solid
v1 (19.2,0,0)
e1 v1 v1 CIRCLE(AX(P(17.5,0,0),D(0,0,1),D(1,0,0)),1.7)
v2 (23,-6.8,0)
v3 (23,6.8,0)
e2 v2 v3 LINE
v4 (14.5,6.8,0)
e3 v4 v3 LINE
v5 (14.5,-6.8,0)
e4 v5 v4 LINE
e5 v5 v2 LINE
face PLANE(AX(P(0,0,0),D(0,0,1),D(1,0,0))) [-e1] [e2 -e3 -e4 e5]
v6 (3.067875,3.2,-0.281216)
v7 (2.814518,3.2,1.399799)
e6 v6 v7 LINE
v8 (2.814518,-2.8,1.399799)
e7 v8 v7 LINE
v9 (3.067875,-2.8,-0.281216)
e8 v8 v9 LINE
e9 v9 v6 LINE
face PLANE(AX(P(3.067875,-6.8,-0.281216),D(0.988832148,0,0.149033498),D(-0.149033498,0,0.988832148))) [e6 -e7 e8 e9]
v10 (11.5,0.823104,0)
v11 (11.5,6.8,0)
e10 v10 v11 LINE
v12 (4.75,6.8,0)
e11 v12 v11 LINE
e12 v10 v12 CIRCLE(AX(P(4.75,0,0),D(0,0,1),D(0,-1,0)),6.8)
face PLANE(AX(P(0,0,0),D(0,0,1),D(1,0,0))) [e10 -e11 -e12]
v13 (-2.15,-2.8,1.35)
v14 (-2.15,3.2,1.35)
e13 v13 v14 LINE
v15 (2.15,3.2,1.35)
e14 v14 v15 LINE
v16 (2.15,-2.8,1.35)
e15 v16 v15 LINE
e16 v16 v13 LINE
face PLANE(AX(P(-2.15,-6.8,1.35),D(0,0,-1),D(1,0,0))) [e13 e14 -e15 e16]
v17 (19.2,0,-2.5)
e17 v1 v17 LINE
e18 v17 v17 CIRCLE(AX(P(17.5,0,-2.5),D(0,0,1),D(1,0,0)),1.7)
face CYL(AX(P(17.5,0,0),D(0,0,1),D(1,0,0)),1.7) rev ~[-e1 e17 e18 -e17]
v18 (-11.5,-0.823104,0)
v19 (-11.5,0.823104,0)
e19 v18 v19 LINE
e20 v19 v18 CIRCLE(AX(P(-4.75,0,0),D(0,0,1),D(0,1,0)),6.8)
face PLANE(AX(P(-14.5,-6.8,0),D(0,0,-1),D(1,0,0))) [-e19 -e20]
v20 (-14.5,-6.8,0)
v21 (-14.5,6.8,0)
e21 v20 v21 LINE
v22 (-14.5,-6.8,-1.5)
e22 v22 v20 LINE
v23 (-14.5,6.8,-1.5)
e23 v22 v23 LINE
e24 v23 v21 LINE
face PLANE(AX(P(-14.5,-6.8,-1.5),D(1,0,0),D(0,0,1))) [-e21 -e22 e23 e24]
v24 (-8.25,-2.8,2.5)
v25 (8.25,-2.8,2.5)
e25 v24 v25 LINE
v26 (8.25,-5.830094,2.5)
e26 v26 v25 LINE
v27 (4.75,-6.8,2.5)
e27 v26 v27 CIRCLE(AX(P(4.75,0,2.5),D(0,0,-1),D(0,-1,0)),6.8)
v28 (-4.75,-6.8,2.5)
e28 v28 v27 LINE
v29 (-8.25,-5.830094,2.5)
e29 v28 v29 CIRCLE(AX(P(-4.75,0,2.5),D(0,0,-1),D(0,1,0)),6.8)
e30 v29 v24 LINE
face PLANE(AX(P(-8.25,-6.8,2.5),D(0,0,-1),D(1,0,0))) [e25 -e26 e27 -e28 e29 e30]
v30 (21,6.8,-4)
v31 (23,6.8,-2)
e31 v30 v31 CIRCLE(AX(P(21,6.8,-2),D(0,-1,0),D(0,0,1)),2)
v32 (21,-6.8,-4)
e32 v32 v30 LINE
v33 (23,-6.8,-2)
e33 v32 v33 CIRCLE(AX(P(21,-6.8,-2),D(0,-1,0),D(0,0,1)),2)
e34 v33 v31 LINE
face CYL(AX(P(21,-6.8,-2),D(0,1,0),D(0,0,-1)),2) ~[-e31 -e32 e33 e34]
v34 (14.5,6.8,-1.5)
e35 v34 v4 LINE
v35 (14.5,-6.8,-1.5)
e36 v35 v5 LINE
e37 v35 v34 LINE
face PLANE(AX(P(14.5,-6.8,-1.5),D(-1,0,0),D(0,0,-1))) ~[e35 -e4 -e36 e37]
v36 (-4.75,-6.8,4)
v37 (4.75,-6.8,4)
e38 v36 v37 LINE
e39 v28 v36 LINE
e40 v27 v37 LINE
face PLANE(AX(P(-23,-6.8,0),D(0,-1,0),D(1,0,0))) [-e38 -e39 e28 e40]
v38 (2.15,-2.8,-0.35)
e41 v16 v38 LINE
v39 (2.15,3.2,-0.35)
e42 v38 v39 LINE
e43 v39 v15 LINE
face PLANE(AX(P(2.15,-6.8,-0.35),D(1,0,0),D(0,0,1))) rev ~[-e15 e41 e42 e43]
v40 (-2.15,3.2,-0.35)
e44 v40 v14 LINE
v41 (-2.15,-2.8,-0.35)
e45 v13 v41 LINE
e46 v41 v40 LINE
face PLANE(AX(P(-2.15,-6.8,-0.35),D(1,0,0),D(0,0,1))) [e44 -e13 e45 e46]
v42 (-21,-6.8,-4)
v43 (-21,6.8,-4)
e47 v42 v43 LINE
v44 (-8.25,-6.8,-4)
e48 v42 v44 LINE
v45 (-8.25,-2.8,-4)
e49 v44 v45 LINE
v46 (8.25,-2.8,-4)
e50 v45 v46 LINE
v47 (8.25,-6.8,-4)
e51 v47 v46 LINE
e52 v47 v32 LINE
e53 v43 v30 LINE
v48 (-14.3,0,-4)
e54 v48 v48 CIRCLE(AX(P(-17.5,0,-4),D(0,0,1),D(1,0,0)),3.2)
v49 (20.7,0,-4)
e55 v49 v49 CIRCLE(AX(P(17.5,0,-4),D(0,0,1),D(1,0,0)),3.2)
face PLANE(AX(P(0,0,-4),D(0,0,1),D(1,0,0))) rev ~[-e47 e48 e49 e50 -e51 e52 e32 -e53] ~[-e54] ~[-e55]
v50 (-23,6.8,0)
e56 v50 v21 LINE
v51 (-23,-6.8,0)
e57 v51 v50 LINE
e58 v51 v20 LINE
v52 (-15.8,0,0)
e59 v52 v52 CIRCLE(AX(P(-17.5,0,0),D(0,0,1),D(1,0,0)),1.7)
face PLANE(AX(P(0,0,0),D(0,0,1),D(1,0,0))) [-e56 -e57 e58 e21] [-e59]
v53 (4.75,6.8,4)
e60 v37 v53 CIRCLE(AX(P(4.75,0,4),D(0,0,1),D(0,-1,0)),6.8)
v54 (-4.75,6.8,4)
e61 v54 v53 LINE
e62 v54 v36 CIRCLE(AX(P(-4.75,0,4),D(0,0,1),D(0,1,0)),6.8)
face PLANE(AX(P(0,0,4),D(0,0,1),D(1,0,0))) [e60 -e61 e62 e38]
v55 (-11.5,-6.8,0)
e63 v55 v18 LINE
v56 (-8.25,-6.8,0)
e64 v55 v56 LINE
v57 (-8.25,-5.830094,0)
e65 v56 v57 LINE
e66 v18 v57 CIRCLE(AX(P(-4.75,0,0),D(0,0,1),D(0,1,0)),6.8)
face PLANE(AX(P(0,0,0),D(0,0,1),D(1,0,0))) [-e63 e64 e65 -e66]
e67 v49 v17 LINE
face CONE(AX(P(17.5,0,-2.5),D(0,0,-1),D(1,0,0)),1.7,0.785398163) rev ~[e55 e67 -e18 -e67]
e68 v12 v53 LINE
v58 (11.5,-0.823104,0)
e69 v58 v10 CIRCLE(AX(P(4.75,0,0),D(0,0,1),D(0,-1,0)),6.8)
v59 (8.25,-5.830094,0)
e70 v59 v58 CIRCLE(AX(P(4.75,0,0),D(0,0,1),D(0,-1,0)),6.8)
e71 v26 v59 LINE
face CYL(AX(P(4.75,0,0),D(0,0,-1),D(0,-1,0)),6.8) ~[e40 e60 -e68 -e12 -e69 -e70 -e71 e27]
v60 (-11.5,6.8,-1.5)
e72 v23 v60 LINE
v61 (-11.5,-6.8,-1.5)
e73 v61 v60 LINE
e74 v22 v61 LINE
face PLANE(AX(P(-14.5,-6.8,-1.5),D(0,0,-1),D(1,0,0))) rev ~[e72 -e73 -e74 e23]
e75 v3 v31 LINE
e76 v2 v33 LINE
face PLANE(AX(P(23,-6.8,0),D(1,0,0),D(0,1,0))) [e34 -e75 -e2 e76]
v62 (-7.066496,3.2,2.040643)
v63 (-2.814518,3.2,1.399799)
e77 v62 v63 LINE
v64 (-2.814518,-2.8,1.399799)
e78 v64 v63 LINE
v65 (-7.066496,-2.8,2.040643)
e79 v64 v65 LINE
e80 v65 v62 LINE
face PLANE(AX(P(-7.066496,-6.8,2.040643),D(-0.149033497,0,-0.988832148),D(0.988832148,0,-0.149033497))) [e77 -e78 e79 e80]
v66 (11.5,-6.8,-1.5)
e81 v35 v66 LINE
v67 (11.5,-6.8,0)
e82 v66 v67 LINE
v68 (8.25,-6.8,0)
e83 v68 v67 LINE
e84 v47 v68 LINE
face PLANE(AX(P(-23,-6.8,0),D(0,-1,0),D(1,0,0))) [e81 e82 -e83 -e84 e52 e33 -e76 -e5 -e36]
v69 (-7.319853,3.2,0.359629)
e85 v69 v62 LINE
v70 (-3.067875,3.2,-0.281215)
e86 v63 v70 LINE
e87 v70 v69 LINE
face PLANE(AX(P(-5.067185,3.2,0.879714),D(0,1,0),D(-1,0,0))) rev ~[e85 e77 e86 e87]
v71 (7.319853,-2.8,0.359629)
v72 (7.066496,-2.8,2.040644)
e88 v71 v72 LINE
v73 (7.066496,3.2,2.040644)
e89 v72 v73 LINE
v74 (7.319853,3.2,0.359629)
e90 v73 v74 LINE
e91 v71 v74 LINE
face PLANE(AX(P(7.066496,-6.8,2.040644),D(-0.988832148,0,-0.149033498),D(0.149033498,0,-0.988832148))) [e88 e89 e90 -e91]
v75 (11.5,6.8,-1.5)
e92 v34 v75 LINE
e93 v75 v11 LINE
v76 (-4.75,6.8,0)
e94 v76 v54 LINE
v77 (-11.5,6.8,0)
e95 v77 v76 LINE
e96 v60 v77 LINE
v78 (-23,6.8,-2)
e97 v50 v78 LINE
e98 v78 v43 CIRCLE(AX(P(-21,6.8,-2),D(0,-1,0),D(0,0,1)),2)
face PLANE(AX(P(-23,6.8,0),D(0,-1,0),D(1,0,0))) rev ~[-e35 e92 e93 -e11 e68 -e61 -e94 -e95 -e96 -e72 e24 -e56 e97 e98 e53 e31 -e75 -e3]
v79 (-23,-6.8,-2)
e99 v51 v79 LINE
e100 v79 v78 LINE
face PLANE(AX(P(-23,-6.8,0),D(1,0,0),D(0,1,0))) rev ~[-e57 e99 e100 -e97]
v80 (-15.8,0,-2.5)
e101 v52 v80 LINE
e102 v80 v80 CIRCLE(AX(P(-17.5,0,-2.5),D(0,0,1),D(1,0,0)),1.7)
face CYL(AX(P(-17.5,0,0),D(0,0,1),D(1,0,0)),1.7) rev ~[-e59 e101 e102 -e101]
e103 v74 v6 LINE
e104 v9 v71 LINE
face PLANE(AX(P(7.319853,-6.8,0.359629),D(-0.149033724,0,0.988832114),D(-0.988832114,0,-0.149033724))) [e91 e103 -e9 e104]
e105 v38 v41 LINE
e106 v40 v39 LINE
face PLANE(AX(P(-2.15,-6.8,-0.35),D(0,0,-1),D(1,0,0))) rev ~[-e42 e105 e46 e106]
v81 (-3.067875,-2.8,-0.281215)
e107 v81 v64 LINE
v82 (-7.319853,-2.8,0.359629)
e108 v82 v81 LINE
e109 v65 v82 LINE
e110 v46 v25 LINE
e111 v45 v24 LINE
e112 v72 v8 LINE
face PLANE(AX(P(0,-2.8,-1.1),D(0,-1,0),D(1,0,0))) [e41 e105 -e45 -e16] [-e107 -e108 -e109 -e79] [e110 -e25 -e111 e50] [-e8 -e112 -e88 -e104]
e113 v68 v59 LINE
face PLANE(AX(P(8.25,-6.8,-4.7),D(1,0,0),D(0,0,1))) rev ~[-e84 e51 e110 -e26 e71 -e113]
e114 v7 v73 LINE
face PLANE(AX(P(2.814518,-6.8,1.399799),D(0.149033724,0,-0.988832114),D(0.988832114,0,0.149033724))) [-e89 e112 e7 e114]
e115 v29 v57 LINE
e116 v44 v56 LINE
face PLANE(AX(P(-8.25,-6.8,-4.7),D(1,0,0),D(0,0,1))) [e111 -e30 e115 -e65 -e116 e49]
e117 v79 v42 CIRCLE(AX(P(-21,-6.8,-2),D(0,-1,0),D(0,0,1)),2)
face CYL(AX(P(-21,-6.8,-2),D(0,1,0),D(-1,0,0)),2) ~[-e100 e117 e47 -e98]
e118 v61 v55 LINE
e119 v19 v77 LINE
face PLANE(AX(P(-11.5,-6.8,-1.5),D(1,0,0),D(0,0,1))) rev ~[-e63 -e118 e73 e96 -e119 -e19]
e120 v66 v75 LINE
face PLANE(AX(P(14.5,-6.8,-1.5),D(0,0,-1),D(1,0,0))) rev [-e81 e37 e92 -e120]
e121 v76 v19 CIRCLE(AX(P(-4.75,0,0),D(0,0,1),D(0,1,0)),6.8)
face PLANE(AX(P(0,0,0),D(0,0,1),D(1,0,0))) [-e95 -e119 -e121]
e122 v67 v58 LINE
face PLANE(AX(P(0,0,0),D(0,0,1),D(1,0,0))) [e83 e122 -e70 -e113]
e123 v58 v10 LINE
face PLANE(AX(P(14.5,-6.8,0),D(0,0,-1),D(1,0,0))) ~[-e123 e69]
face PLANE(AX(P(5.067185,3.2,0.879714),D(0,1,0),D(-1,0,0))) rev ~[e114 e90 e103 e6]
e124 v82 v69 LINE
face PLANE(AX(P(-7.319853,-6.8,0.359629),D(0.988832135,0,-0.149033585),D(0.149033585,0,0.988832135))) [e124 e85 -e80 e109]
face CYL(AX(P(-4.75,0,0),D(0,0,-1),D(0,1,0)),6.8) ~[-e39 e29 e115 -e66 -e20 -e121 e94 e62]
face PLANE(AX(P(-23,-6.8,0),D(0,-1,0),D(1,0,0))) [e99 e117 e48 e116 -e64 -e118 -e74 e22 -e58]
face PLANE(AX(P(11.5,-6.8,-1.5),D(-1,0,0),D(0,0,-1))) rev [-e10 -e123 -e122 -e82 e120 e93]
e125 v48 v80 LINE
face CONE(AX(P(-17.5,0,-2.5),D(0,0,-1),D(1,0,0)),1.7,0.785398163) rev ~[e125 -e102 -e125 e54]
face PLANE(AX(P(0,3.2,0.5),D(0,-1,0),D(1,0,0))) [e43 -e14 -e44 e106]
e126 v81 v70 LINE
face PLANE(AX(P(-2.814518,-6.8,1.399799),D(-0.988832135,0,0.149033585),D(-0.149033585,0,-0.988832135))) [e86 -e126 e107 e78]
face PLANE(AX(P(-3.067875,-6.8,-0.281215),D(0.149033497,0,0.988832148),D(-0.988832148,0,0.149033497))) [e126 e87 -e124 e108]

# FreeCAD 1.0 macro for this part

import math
import FreeCAD as App
import Part
import Sketcher

V = App.Vector
Q = App.Units.Quantity


def edges_at(feature, points):
    """Names of the edges that pass closest to the given points."""
    edges = feature.Shape.Edges
    near = lambda p: min(range(len(edges)), key=lambda i: edges[i].distToShape(Part.Vertex(*p))[0])
    return sorted({f"Edge{near(p) + 1}" for p in points})


def add_polygon(sketch, points):
    """Adds a closed chain of lines whose ends are joined by coincident constraints."""
    first, n = sketch.GeometryCount, len(points)
    for a, b in zip(points, points[1:] + points[:1]):
        sketch.addGeometry(Part.LineSegment(App.Vector(*a, 0), App.Vector(*b, 0)), False)
    for i in range(n):
        sketch.addConstraint(Sketcher.Constraint("Coincident", first + i, 2, first + (i + 1) % n, 1))

doc = App.newDocument("Part")
params = doc.addObject("Spreadsheet::Sheet", "Params")
for row, (alias, value) in enumerate([
    ("sketch1_diameter", "3.4 mm"),
    ("sketch1_width", "46 mm"),
    ("sketch1_height", "13.6 mm"),
    ("pad1_length", "4 mm"),
    ("sketch2_radius", "6.8 mm"),
    ("sketch2_width", "9.5 mm"),
    ("pad2_length", "4 mm"),
    ("sketch3_width", "4.3 mm"),
    ("sketch3_height", "1.7 mm"),
    ("sketch3_length", "4.3 mm"),
    ("sketch3_length2", "1.699999 mm"),
    ("pocket1_length", "10 mm"),
    ("sketch4_width", "16.5 mm"),
    ("sketch4_height", "7.2 mm"),
    ("pocket2_length", "4 mm"),
    ("sketch5_width", "3 mm"),
    ("sketch5_height", "1.5 mm"),
    ("fillet_radius", "2 mm"),
    ("fillet2_radius", "2 mm"),
    ("chamfer_size", "1.5 mm"),
    ("chamfer2_size", "1.5 mm"),
], start=1):
    params.set(f"A{row}", alias)
    params.set(f"B{row}", "=" + value)
    params.setAlias(f"B{row}", alias)

body = doc.addObject("PartDesign::Body", "Body")

sketch1 = body.newObject("Sketcher::SketchObject", "Sketch")
sketch1.AttachmentSupport = (doc.getObject("XY_Plane"), [""])
sketch1.MapMode = "FlatFace"
add_polygon(sketch1, [(-23, 6.8), (-23, -6.8), (23, -6.8), (23, 6.8)])
sketch1.addGeometry(Part.Circle(V(-17.5, 0, 0), V(0, 0, 1), 1.7), False)
sketch1.addGeometry(Part.Circle(V(17.5, 0, 0), V(0, 0, 1), 1.7), False)
sketch1.addConstraint([
    Sketcher.Constraint("Vertical", 0),
    Sketcher.Constraint("Horizontal", 1),
    Sketcher.Constraint("Vertical", 2),
    Sketcher.Constraint("Horizontal", 3),
    Sketcher.Constraint("Equal", 4, 5),
    Sketcher.Constraint("Symmetric", 4, 3, 5, 3, -1, 1),
    Sketcher.Constraint("Symmetric", 0, 2, 2, 2, -1, 1),
    Sketcher.Constraint("PointOnObject", 4, 3, -1),
    Sketcher.Constraint("Diameter", 4, Q("3.4 mm")),
    Sketcher.Constraint("DistanceX", 1, 1, 1, 2, Q("46 mm")),
    Sketcher.Constraint("DistanceY", 0, 2, 0, 1, Q("13.6 mm")),
    Sketcher.Constraint("DistanceX", 4, 3, 5, 3, Q("35 mm")),
])
sketch1.setExpression("Constraints[12]", "Params.sketch1_diameter")
sketch1.setExpression("Constraints[13]", "Params.sketch1_width")
sketch1.setExpression("Constraints[14]", "Params.sketch1_height")
pad1 = body.newObject("PartDesign::Pad", "Pad")
pad1.Profile = sketch1
pad1.setExpression("Length", "Params.pad1_length")
pad1.Reversed = True

sketch2 = body.newObject("Sketcher::SketchObject", "Sketch001")
sketch2.AttachmentSupport = (doc.getObject("XY_Plane"), [""])
sketch2.MapMode = "FlatFace"
sketch2.addGeometry([
    Part.ArcOfCircle(Part.Circle(V(-5, 0, 0), V(0, 0, 1), 7), math.radians(90), math.radians(270)),
    Part.LineSegment(V(-5, -7, 0), V(5, -7, 0)),
    Part.ArcOfCircle(Part.Circle(V(5, 0, 0), V(0, 0, 1), 7), math.radians(-90), math.radians(90)),
    Part.LineSegment(V(5, 7, 0), V(-5, 7, 0)),
], False)
sketch2.addConstraint([
    Sketcher.Constraint("Tangent", 0, 2, 1, 1),
    Sketcher.Constraint("Tangent", 1, 2, 2, 1),
    Sketcher.Constraint("Tangent", 2, 2, 3, 1),
    Sketcher.Constraint("Tangent", 3, 2, 0, 1),
    Sketcher.Constraint("Horizontal", 1),
    Sketcher.Constraint("Horizontal", 3),
    Sketcher.Constraint("Symmetric", 0, 3, 2, 3, -1, 1),
    Sketcher.Constraint("Radius", 0, Q("6.8 mm")),
    Sketcher.Constraint("DistanceX", 1, 1, 1, 2, Q("9.5 mm")),
])
sketch2.setExpression("Constraints[7]", "Params.sketch2_radius")
sketch2.setExpression("Constraints[8]", "Params.sketch2_width")
pad2 = body.newObject("PartDesign::Pad", "Pad001")
pad2.Profile = sketch2
pad2.setExpression("Length", "Params.pad2_length")

sketch3 = body.newObject("Sketcher::SketchObject", "Sketch002")
sketch3.AttachmentSupport = (doc.getObject("XZ_Plane"), [""])
sketch3.MapMode = "FlatFace"
sketch3.AttachmentOffset = App.Placement(V(0, 0, 6.8), App.Rotation())
add_polygon(sketch3, [(-2.8, 1.4), (-7.1, 2), (-7.3, 0.4), (-3.1, -0.3)])
add_polygon(sketch3, [(-2.1, 1.4), (-2.1, -0.3), (2.1, -0.3), (2.1, 1.4)])
add_polygon(sketch3, [(7.1, 2), (2.8, 1.4), (3.1, -0.3), (7.3, 0.4)])
sketch3.addConstraint([
    Sketcher.Constraint("Vertical", 4),
    Sketcher.Constraint("Horizontal", 5),
    Sketcher.Constraint("Vertical", 6),
    Sketcher.Constraint("Horizontal", 7),
    Sketcher.Constraint("Symmetric", 3, 2, 8, 2, -2),
    Sketcher.Constraint("Symmetric", 2, 2, 9, 2, -2),
    Sketcher.Constraint("Symmetric", 1, 2, 10, 2, -2),
    Sketcher.Constraint("Symmetric", 0, 2, 11, 2, -2),
    Sketcher.Constraint("Perpendicular", 0, 1),
    Sketcher.Constraint("Perpendicular", 1, 2),
    Sketcher.Constraint("Perpendicular", 2, 3),
    Sketcher.Constraint("DistanceX", 5, 1, 5, 2, Q("4.3 mm")),
    Sketcher.Constraint("DistanceY", 4, 2, 4, 1, Q("1.7 mm")),
    Sketcher.Constraint("Distance", 0, Q("4.3 mm")),
    Sketcher.Constraint("Distance", 1, Q("1.699999 mm")),
    Sketcher.Constraint("DistanceX", 4, 2, -1, 1, Q("2.15 mm")),
    Sketcher.Constraint("DistanceY", 4, 2, -1, 1, Q("0.35 mm")),
    Sketcher.Constraint("DistanceY", -1, 1, 3, 2, Q("1.399799 mm")),
    Sketcher.Constraint("DistanceY", -1, 1, 1, 2, Q("0.359629 mm")),
    Sketcher.Constraint("DistanceX", 3, 2, -1, 1, Q("2.814518 mm")),
])
sketch3.setExpression("Constraints[23]", "Params.sketch3_width")
sketch3.setExpression("Constraints[24]", "Params.sketch3_height")
sketch3.setExpression("Constraints[25]", "Params.sketch3_length")
sketch3.setExpression("Constraints[26]", "Params.sketch3_length2")
pocket1 = body.newObject("PartDesign::Pocket", "Pocket")
pocket1.Profile = sketch3
pocket1.setExpression("Length", "Params.pocket1_length")

sketch4 = body.newObject("Sketcher::SketchObject", "Sketch003")
sketch4.AttachmentSupport = (doc.getObject("XZ_Plane"), [""])
sketch4.MapMode = "FlatFace"
sketch4.AttachmentOffset = App.Placement(V(0, 0, 6.8), App.Rotation())
add_polygon(sketch4, [(-8, 2), (-8, -5), (8, -5), (8, 2)])
sketch4.addConstraint([
    Sketcher.Constraint("Vertical", 0),
    Sketcher.Constraint("Horizontal", 1),
    Sketcher.Constraint("Vertical", 2),
    Sketcher.Constraint("Horizontal", 3),
    Sketcher.Constraint("DistanceX", 1, 1, 1, 2, Q("16.5 mm")),
    Sketcher.Constraint("DistanceY", 0, 2, 0, 1, Q("7.2 mm")),
    Sketcher.Constraint("DistanceY", 0, 2, -1, 1, Q("4.7 mm")),
    Sketcher.Constraint("DistanceX", 0, 2, -1, 1, Q("8.25 mm")),
])
sketch4.setExpression("Constraints[8]", "Params.sketch4_width")
sketch4.setExpression("Constraints[9]", "Params.sketch4_height")
pocket2 = body.newObject("PartDesign::Pocket", "Pocket001")
pocket2.Profile = sketch4
pocket2.setExpression("Length", "Params.pocket2_length")

sketch5 = body.newObject("Sketcher::SketchObject", "Sketch004")
sketch5.AttachmentSupport = (doc.getObject("XZ_Plane"), [""])
sketch5.MapMode = "FlatFace"
sketch5.AttachmentOffset = App.Placement(V(0, 0, 6.8), App.Rotation())
add_polygon(sketch5, [(-14.5, 0), (-14.5, -1.5), (-11.5, -1.5), (-11.5, 0)])
sketch5.addConstraint([
    Sketcher.Constraint("Vertical", 0),
    Sketcher.Constraint("Horizontal", 1),
    Sketcher.Constraint("Vertical", 2),
    Sketcher.Constraint("Horizontal", 3),
    Sketcher.Constraint("PointOnObject", 2, 2, -1),
    Sketcher.Constraint("DistanceX", 1, 1, 1, 2, Q("3 mm")),
    Sketcher.Constraint("DistanceY", 0, 2, 0, 1, Q("1.5 mm")),
    Sketcher.Constraint("DistanceX", 0, 2, -1, 1, Q("14.5 mm")),
])
sketch5.setExpression("Constraints[9]", "Params.sketch5_width")
sketch5.setExpression("Constraints[10]", "Params.sketch5_height")
pocket3 = body.newObject("PartDesign::Pocket", "Pocket002")
pocket3.Profile = sketch5
pocket3.Type = "ThroughAll"
doc.recompute()

mirrored = body.newObject("PartDesign::Mirrored", "Mirrored")
mirrored.Originals = [pocket3]
mirrored.MirrorPlane = (doc.getObject("YZ_Plane"), [""])
body.Tip = mirrored
doc.recompute()

fillet = body.newObject("PartDesign::Fillet", "Fillet")
fillet.Base = (mirrored, edges_at(mirrored, [(-23, 0, -4)]))
fillet.setExpression("Radius", "Params.fillet_radius")
doc.recompute()

fillet2 = body.newObject("PartDesign::Fillet", "Fillet001")
fillet2.Base = (fillet, edges_at(fillet, [(23, 0, -4)]))
fillet2.setExpression("Radius", "Params.fillet2_radius")
doc.recompute()

chamfer = body.newObject("PartDesign::Chamfer", "Chamfer")
chamfer.Base = (fillet2, edges_at(fillet2, [(-19.2, 0, -4)]))
chamfer.setExpression("Size", "Params.chamfer_size")
doc.recompute()

chamfer2 = body.newObject("PartDesign::Chamfer", "Chamfer001")
chamfer2.Base = (chamfer, edges_at(chamfer, [(15.8, 0, -4)]))
chamfer2.setExpression("Size", "Params.chamfer2_size")

doc.recompute()
